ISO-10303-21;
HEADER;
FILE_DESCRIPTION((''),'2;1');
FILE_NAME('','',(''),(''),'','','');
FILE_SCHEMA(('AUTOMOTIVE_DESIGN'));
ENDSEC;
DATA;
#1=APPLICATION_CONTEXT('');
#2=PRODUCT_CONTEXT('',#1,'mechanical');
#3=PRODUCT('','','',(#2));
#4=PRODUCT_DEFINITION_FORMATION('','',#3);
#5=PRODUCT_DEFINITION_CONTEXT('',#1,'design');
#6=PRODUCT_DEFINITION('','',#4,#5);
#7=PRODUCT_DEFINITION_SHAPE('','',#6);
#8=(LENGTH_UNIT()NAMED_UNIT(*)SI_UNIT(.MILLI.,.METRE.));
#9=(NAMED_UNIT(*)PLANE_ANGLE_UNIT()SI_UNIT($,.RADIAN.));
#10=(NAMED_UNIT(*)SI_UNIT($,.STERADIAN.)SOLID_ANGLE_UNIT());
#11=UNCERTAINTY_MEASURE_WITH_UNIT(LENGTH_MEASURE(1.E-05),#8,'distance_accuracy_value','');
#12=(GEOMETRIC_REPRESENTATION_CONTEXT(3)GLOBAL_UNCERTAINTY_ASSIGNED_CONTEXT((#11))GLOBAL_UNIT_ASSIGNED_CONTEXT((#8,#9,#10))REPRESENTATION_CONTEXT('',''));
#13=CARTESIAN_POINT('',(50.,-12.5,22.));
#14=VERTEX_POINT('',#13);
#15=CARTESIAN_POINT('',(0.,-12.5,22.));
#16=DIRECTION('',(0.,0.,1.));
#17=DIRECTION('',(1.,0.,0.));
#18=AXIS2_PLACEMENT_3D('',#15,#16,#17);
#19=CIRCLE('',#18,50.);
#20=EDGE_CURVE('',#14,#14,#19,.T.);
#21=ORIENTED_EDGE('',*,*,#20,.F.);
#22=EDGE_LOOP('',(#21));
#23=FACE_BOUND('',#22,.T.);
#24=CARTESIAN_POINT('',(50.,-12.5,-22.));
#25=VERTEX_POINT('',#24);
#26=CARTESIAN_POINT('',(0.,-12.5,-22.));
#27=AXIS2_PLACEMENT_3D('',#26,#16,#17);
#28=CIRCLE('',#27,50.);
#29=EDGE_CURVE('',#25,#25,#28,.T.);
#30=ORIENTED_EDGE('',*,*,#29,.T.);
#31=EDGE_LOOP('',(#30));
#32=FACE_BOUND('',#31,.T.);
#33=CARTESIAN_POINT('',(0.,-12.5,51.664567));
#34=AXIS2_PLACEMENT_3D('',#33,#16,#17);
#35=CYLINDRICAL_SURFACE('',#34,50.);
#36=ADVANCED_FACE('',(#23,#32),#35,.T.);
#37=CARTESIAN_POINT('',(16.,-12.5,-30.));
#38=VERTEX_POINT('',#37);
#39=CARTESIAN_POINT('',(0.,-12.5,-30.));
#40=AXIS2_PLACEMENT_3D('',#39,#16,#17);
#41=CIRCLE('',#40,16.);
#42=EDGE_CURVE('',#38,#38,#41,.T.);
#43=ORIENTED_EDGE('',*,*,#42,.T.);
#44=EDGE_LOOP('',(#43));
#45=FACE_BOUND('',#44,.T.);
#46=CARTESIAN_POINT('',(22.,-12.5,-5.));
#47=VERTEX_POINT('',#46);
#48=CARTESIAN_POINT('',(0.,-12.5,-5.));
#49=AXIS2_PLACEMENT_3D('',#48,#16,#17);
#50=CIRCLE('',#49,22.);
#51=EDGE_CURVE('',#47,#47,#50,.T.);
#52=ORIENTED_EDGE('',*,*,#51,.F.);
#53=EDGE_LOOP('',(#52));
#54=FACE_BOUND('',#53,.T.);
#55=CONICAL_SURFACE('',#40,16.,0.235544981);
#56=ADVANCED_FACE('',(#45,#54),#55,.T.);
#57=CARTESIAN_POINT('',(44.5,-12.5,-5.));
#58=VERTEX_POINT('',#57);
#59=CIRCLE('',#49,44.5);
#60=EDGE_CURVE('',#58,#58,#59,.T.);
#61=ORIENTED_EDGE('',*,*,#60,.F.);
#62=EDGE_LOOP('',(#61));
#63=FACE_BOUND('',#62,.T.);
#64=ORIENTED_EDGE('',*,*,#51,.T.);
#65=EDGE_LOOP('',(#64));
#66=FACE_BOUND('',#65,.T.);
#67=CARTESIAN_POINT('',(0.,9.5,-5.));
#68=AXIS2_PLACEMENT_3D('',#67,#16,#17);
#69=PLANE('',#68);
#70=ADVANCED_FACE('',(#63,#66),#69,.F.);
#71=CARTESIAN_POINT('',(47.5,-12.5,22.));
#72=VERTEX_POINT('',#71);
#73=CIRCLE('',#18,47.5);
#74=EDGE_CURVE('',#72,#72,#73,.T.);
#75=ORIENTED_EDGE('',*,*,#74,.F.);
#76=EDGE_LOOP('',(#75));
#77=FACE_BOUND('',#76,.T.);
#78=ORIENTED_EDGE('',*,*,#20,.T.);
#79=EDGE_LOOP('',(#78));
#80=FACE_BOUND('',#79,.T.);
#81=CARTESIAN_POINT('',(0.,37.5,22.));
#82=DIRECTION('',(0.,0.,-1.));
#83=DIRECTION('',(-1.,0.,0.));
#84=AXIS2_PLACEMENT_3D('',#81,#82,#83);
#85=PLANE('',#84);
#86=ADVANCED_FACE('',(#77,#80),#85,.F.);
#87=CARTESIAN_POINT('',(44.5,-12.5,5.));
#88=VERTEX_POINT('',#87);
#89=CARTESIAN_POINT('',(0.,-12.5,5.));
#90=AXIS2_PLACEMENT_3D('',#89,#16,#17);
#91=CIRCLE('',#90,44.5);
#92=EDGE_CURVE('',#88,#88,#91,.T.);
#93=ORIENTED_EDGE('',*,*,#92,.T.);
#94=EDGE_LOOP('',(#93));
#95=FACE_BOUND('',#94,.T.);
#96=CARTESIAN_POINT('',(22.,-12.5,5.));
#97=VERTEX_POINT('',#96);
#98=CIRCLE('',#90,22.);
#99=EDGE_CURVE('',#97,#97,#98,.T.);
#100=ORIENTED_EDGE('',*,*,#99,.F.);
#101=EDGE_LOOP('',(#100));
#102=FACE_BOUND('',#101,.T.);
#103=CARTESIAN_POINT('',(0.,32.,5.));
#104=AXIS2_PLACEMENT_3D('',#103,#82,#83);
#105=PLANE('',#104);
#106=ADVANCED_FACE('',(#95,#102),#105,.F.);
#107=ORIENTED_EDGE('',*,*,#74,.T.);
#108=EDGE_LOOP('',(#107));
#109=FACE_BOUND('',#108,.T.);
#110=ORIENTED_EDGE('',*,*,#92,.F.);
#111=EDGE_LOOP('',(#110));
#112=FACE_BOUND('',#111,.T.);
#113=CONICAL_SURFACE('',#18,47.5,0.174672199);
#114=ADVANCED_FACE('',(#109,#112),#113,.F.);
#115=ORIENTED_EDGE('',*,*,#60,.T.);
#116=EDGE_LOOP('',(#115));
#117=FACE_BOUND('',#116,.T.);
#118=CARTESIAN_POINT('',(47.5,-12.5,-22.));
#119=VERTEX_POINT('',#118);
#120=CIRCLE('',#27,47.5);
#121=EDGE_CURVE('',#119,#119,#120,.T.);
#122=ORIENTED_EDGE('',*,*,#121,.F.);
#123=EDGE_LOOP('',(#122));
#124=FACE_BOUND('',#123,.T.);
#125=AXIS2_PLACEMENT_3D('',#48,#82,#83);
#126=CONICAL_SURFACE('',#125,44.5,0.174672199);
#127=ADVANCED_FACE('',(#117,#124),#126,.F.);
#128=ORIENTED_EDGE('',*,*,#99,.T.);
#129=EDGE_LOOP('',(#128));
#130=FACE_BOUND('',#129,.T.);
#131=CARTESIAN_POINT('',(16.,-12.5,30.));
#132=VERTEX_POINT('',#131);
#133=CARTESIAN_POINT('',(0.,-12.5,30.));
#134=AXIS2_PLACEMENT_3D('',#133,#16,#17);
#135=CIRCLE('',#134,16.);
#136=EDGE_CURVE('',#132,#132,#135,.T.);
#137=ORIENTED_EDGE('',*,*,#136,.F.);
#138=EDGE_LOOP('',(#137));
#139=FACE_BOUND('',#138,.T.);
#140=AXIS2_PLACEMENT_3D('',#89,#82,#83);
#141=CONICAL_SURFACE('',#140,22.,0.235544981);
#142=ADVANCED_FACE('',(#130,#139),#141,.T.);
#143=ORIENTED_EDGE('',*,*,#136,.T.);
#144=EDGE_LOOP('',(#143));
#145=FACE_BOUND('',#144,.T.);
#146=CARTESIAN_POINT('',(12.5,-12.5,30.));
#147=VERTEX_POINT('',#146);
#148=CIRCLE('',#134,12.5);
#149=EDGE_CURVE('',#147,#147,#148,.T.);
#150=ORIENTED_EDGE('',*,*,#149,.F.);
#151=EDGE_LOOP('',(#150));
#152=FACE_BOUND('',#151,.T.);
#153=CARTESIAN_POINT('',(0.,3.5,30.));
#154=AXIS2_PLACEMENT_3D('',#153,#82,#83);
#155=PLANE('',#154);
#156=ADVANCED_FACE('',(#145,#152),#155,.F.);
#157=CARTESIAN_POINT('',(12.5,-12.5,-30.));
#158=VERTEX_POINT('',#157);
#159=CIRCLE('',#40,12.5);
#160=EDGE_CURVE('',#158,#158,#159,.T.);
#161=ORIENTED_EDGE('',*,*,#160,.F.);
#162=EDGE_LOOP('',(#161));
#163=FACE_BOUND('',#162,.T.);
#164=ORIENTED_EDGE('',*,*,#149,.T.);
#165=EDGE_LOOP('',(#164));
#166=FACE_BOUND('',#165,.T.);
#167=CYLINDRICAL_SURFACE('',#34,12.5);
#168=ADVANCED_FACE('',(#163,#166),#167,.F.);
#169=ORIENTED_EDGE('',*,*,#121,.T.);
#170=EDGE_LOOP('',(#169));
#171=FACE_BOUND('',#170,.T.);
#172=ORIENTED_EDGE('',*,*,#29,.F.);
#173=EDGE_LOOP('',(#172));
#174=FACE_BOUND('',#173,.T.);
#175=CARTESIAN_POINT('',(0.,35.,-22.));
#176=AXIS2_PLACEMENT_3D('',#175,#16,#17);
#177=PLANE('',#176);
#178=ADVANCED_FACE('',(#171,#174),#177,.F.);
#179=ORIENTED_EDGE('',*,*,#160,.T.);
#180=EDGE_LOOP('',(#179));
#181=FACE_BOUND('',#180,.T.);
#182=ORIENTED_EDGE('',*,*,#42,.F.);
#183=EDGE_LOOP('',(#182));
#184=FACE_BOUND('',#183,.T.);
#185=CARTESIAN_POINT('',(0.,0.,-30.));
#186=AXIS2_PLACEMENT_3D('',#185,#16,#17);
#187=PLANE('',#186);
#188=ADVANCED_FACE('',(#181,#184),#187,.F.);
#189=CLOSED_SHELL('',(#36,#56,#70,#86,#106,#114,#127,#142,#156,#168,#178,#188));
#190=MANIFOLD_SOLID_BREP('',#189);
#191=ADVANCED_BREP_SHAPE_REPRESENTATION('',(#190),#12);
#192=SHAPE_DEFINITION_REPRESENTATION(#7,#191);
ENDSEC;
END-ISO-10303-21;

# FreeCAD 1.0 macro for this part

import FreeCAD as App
import Part
import Sketcher

V = App.Vector


def add_polygon(sketch, points):
    """Adds a closed chain of lines whose ends are joined by coincident constraints."""
    first, n = sketch.GeometryCount, len(points)
    for a, b in zip(points, points[1:] + points[:1]):
        sketch.addGeometry(Part.LineSegment(App.Vector(*a, 0), App.Vector(*b, 0)), False)
    for i in range(n):
        sketch.addConstraint(Sketcher.Constraint("Coincident", first + i, 2, first + (i + 1) % n, 1))

doc = App.newDocument("Part")
body = doc.addObject("PartDesign::Body", "Body")

# Sketch on YZ plane
sketch1 = body.newObject("Sketcher::SketchObject", "Sketch")
sketch1.AttachmentSupport = (doc.getObject("YZ_Plane"), [""])
sketch1.MapMode = "FlatFace"
add_polygon(sketch1, [(0, 30), (0, -30), (3.5, -30), (9.5, -5), (32, -5), (35, -22), (37.5, -22), (37.5, 22), (35, 22), (32, 5), (9.5, 5), (3.5, 30)])  # lines 0-11
sketch1.addGeometry(Part.LineSegment(V(-12.5, 30, 0), V(-12.5, -30, 0)), True)  # axis
sketch1.addConstraint(Sketcher.Constraint("Vertical", 0))
sketch1.addConstraint(Sketcher.Constraint("Horizontal", 1))
sketch1.addConstraint(Sketcher.Constraint("Horizontal", 3))
sketch1.addConstraint(Sketcher.Constraint("Horizontal", 5))
sketch1.addConstraint(Sketcher.Constraint("Vertical", 6))
sketch1.addConstraint(Sketcher.Constraint("Horizontal", 7))
sketch1.addConstraint(Sketcher.Constraint("Horizontal", 9))
sketch1.addConstraint(Sketcher.Constraint("Horizontal", 11))
sketch1.addConstraint(Sketcher.Constraint("Vertical", 12))
sketch1.addConstraint(Sketcher.Constraint("Symmetric", 0, 2, 11, 2, -1, 1))
sketch1.addConstraint(Sketcher.Constraint("Symmetric", 4, 2, 7, 2, -1))
sketch1.addConstraint(Sketcher.Constraint("Symmetric", 3, 2, 8, 2, -1))
sketch1.addConstraint(Sketcher.Constraint("Horizontal", 11, 2, 12, 1))
sketch1.addConstraint(Sketcher.Constraint("Horizontal", 1, 2, 12, 2))
sketch1.addConstraint(Sketcher.Constraint("Vertical", 2, 2, 9, 2))
sketch1.addConstraint(Sketcher.Constraint("Vertical", 1, 2, 10, 2))
sketch1.addConstraint(Sketcher.Constraint("DistanceY", 0, 2, 0, 1, 60.0))
sketch1.addConstraint(Sketcher.Constraint("DistanceY", 6, 1, 6, 2, 44.0))
sketch1.addConstraint(Sketcher.Constraint("DistanceX", 1, 1, 1, 2, 3.5))
sketch1.addConstraint(Sketcher.Constraint("DistanceX", 3, 1, 3, 2, 22.5))
sketch1.addConstraint(Sketcher.Constraint("DistanceX", 5, 1, 5, 2, 2.5))
sketch1.addConstraint(Sketcher.Constraint("DistanceY", 2, 2, -1, 1, 5.0))
sketch1.addConstraint(Sketcher.Constraint("DistanceX", -1, 1, 3, 2, 32.0))
sketch1.addConstraint(Sketcher.Constraint("DistanceX", -1, 1, 4, 2, 35.0))
sketch1.addConstraint(Sketcher.Constraint("DistanceX", 12, 1, 10, 2, 16.0))
revolution = body.newObject("PartDesign::Revolution", "Revolution")
revolution.Profile = sketch1
revolution.ReferenceAxis = (sketch1, ["Axis0"])
revolution.Angle = 360

doc.recompute()
